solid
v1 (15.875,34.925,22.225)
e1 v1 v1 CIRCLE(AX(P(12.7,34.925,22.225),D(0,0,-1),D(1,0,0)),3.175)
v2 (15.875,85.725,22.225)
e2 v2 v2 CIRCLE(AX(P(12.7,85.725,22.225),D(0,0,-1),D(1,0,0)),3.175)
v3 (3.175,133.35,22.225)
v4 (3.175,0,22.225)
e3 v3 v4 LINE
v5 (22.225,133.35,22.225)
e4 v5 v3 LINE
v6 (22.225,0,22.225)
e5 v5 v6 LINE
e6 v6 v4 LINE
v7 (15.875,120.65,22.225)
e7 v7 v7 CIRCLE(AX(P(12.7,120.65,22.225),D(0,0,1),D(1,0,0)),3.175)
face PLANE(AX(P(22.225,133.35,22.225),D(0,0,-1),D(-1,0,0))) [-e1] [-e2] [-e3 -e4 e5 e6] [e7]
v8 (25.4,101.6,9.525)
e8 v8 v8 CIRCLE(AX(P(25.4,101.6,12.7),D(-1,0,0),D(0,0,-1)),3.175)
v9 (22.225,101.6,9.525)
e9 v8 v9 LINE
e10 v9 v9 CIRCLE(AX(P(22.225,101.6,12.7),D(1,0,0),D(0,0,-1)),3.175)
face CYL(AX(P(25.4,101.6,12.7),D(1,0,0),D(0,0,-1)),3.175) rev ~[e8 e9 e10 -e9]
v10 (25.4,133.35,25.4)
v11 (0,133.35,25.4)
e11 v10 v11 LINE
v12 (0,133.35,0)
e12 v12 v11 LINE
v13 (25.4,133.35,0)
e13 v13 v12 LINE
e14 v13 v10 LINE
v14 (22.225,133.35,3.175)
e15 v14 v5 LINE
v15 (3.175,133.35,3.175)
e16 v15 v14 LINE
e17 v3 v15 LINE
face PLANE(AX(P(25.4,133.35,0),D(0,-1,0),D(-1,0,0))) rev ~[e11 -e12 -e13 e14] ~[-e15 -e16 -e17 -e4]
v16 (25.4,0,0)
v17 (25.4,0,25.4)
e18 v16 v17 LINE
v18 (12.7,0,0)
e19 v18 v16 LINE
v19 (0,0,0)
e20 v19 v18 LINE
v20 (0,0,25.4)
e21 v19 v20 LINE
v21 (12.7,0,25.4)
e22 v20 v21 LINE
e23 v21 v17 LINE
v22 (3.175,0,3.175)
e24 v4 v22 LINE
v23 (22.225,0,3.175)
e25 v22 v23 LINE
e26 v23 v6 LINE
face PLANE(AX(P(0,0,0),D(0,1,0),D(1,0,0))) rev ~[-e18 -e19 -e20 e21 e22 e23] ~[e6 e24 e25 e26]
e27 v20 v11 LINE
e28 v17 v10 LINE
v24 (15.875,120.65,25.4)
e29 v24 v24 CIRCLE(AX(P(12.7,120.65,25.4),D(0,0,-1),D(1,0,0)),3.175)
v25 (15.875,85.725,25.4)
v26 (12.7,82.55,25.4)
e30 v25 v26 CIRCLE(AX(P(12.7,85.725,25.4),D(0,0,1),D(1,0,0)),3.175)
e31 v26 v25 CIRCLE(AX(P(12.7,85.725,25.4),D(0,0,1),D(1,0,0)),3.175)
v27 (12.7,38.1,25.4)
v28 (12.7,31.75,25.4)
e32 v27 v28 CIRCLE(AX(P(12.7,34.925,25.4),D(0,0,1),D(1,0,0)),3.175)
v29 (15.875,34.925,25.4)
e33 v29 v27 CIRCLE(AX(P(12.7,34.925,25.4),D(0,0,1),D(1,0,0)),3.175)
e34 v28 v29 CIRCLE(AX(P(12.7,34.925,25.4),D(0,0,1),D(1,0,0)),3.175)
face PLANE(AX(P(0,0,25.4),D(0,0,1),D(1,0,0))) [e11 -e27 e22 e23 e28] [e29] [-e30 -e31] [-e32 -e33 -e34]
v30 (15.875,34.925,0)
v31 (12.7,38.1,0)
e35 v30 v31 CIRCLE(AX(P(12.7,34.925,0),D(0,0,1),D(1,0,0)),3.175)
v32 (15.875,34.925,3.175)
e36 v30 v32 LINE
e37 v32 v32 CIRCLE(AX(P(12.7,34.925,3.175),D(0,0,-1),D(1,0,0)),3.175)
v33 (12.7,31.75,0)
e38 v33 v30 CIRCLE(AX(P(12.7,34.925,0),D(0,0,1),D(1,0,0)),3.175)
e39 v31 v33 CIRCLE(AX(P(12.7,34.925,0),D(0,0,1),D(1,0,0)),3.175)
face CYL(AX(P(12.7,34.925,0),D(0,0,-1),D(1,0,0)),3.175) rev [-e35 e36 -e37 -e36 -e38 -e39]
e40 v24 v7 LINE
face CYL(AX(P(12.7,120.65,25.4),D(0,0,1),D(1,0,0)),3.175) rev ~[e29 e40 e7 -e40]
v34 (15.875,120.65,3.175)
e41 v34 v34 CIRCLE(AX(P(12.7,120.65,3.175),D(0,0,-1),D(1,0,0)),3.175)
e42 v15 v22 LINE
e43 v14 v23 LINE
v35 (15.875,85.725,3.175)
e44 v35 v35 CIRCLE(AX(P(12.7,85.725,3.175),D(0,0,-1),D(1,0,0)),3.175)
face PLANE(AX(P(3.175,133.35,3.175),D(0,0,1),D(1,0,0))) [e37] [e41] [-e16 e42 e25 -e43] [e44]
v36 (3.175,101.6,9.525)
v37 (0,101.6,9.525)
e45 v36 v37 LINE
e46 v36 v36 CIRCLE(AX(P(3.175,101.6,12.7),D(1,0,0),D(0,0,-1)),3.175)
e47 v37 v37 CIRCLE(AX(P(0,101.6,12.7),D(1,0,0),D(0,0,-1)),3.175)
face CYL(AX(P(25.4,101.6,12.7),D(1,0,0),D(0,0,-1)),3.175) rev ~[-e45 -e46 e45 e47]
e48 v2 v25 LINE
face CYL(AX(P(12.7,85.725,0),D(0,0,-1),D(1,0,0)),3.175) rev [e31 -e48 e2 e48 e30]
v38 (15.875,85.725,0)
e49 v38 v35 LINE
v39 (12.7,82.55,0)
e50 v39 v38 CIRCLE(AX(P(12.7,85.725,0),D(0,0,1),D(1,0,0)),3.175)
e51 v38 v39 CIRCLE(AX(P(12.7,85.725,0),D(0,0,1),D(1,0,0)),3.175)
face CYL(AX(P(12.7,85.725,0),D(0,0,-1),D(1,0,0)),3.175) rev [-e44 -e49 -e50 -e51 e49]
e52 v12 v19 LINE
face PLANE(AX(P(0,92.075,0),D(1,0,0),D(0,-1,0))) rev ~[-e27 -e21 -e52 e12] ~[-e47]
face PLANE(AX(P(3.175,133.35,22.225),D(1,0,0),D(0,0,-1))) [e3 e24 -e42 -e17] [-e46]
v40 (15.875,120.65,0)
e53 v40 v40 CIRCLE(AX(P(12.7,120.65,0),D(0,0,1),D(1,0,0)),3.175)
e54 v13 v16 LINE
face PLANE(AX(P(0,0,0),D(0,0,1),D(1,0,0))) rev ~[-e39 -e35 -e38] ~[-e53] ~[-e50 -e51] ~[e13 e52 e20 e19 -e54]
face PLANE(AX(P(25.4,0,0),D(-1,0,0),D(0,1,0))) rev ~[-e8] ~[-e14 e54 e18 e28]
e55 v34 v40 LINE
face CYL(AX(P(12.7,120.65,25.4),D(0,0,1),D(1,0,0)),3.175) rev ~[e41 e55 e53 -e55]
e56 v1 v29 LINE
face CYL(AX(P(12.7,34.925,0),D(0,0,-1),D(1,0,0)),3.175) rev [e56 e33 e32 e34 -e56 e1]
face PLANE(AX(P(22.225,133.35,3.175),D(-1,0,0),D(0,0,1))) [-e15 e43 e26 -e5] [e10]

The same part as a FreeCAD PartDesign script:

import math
import FreeCAD as App
import Part
import Sketcher

V = App.Vector
Q = App.Units.Quantity


def add_polygon(sketch, points):
    """Adds a closed chain of lines whose ends are joined by coincident constraints."""
    first, n = sketch.GeometryCount, len(points)
    for a, b in zip(points, points[1:] + points[:1]):
        sketch.addGeometry(Part.LineSegment(App.Vector(*a, 0), App.Vector(*b, 0)), False)
    for i in range(n):
        sketch.addConstraint(Sketcher.Constraint("Coincident", first + i, 2, first + (i + 1) % n, 1))

doc = App.newDocument("Part")
body = doc.addObject("PartDesign::Body", "Body")

# Sketch on XY plane
sketch1 = doc.addObject("Sketcher::SketchObject", "Sketch")
body.addObject(sketch1)
sketch1.AttachmentSupport = (doc.XY_Plane, [""])
sketch1.MapMode = "FlatFace"
add_polygon(sketch1, [(0, 0), (12.7, 0), (25.4, 0), (25.4, 133.35), (0, 133.35)])  # lines 0-4
sketch1.addGeometry(Part.ArcOfCircle(Part.Circle(V(12.7, 34.925, 0), V(0, 0, 1), 3.175), math.radians(90), math.radians(270)), False)  # 5
sketch1.addGeometry(Part.ArcOfCircle(Part.Circle(V(12.7, 34.925, 0), V(0, 0, 1), 3.175), math.radians(-90), math.radians(90)), False)  # 6
sketch1.addGeometry(Part.Circle(V(12.7, 85.725, 0), V(0, 0, 1), 3.175), False)  # 7
sketch1.addConstraint([
    Sketcher.Constraint("Tangent", 5, 1, 6, 2),
    Sketcher.Constraint("Coincident", 6, 1, 5, 2),
    Sketcher.Constraint("Horizontal", 0),
    Sketcher.Constraint("Horizontal", 1),
    Sketcher.Constraint("Vertical", 2),
    Sketcher.Constraint("Horizontal", 3),
    Sketcher.Constraint("Vertical", 4),
    Sketcher.Constraint("Coincident", 4, 2, -1, 1),
    Sketcher.Constraint("Equal", 6, 7),
    Sketcher.Constraint("Vertical", 6, 3, 7, 3),
    Sketcher.Constraint("Vertical", 7, 3, 0, 2),
    Sketcher.Constraint("Vertical", 0, 2, 5, 1),
    Sketcher.Constraint("Vertical", 5, 1, 6, 1),
    Sketcher.Constraint("Equal", 0, 1),
    Sketcher.Constraint("Diameter", 7, Q("0.25 in")),
    Sketcher.Constraint("DistanceX", 3, 2, 3, 1, Q("1 in")),
    Sketcher.Constraint("DistanceY", 5, 3, 7, 3, Q("2 in")),
    Sketcher.Constraint("DistanceY", 2, 1, 2, 2, Q("5.25 in")),
    Sketcher.Constraint("DistanceY", -1, 1, 7, 3, Q("3.375 in")),
])
pad1 = doc.addObject("PartDesign::Pad", "Pad")
body.addObject(pad1)
pad1.Profile = sketch1
pad1.Length = Q("1 in")

# Sketch on XZ plane
sketch2 = doc.addObject("Sketcher::SketchObject", "Sketch001")
body.addObject(sketch2)
sketch2.AttachmentSupport = (doc.XZ_Plane, [""])
sketch2.MapMode = "FlatFace"
sketch2.AttachmentOffset = App.Placement(V(0, 0, -5.25 * 25.4), App.Rotation())
add_polygon(sketch2, [(3.175, 22.225), (22.225, 22.225), (22.225, 3.175), (3.175, 3.175)])  # lines 0-3
sketch2.addConstraint([
    Sketcher.Constraint("Horizontal", 0),
    Sketcher.Constraint("Vertical", 1),
    Sketcher.Constraint("Horizontal", 2),
    Sketcher.Constraint("Vertical", 3),
    Sketcher.Constraint("Equal", 2, 1),
    Sketcher.Constraint("DistanceX", 0, 1, 0, 2, Q("0.75 in")),
    Sketcher.Constraint("DistanceX", -1, 1, 0, 2, Q("0.875 in")),
    Sketcher.Constraint("DistanceY", -1, 1, 0, 2, Q("0.875 in")),
])
pocket1 = doc.addObject("PartDesign::Pocket", "Pocket")
body.addObject(pocket1)
pocket1.Profile = sketch2
pocket1.Length = Q("10 in")
pocket1.Reversed = True

# Sketch on YZ plane
sketch3 = doc.addObject("Sketcher::SketchObject", "Sketch002")
body.addObject(sketch3)
sketch3.AttachmentSupport = (doc.YZ_Plane, [""])
sketch3.MapMode = "FlatFace"
sketch3.AttachmentOffset = App.Placement(V(0, 0, 1 * 25.4), App.Rotation())
sketch3.addGeometry(Part.Circle(V(101.6, 12.7, 0), V(0, 0, 1), 3.175), False)
sketch3.addConstraint([
    Sketcher.Constraint("Diameter", 0, Q("0.25 in")),
    Sketcher.Constraint("DistanceX", -1, 1, 0, 3, Q("4 in")),
    Sketcher.Constraint("DistanceY", -1, 1, 0, 3, Q("0.5 in")),
])
pocket2 = doc.addObject("PartDesign::Pocket", "Pocket001")
body.addObject(pocket2)
pocket2.Profile = sketch3
pocket2.Length = Q("10 in")

# Sketch on XY plane
sketch4 = doc.addObject("Sketcher::SketchObject", "Sketch003")
body.addObject(sketch4)
sketch4.AttachmentSupport = (doc.XY_Plane, [""])
sketch4.MapMode = "FlatFace"
sketch4.AttachmentOffset = App.Placement(V(0, 0, 1 * 25.4), App.Rotation())
sketch4.addGeometry(Part.Circle(V(12.7, 120.65, 0), V(0, 0, 1), 3.175), False)
sketch4.addConstraint([
    Sketcher.Constraint("Diameter", 0, Q("0.25 in")),
    Sketcher.Constraint("DistanceX", -1, 1, 0, 3, Q("0.5 in")),
    Sketcher.Constraint("DistanceY", -1, 1, 0, 3, Q("4.75 in")),
])
pocket3 = doc.addObject("PartDesign::Pocket", "Pocket002")
body.addObject(pocket3)
pocket3.Profile = sketch4
pocket3.Length = Q("1 in")

doc.recompute()
